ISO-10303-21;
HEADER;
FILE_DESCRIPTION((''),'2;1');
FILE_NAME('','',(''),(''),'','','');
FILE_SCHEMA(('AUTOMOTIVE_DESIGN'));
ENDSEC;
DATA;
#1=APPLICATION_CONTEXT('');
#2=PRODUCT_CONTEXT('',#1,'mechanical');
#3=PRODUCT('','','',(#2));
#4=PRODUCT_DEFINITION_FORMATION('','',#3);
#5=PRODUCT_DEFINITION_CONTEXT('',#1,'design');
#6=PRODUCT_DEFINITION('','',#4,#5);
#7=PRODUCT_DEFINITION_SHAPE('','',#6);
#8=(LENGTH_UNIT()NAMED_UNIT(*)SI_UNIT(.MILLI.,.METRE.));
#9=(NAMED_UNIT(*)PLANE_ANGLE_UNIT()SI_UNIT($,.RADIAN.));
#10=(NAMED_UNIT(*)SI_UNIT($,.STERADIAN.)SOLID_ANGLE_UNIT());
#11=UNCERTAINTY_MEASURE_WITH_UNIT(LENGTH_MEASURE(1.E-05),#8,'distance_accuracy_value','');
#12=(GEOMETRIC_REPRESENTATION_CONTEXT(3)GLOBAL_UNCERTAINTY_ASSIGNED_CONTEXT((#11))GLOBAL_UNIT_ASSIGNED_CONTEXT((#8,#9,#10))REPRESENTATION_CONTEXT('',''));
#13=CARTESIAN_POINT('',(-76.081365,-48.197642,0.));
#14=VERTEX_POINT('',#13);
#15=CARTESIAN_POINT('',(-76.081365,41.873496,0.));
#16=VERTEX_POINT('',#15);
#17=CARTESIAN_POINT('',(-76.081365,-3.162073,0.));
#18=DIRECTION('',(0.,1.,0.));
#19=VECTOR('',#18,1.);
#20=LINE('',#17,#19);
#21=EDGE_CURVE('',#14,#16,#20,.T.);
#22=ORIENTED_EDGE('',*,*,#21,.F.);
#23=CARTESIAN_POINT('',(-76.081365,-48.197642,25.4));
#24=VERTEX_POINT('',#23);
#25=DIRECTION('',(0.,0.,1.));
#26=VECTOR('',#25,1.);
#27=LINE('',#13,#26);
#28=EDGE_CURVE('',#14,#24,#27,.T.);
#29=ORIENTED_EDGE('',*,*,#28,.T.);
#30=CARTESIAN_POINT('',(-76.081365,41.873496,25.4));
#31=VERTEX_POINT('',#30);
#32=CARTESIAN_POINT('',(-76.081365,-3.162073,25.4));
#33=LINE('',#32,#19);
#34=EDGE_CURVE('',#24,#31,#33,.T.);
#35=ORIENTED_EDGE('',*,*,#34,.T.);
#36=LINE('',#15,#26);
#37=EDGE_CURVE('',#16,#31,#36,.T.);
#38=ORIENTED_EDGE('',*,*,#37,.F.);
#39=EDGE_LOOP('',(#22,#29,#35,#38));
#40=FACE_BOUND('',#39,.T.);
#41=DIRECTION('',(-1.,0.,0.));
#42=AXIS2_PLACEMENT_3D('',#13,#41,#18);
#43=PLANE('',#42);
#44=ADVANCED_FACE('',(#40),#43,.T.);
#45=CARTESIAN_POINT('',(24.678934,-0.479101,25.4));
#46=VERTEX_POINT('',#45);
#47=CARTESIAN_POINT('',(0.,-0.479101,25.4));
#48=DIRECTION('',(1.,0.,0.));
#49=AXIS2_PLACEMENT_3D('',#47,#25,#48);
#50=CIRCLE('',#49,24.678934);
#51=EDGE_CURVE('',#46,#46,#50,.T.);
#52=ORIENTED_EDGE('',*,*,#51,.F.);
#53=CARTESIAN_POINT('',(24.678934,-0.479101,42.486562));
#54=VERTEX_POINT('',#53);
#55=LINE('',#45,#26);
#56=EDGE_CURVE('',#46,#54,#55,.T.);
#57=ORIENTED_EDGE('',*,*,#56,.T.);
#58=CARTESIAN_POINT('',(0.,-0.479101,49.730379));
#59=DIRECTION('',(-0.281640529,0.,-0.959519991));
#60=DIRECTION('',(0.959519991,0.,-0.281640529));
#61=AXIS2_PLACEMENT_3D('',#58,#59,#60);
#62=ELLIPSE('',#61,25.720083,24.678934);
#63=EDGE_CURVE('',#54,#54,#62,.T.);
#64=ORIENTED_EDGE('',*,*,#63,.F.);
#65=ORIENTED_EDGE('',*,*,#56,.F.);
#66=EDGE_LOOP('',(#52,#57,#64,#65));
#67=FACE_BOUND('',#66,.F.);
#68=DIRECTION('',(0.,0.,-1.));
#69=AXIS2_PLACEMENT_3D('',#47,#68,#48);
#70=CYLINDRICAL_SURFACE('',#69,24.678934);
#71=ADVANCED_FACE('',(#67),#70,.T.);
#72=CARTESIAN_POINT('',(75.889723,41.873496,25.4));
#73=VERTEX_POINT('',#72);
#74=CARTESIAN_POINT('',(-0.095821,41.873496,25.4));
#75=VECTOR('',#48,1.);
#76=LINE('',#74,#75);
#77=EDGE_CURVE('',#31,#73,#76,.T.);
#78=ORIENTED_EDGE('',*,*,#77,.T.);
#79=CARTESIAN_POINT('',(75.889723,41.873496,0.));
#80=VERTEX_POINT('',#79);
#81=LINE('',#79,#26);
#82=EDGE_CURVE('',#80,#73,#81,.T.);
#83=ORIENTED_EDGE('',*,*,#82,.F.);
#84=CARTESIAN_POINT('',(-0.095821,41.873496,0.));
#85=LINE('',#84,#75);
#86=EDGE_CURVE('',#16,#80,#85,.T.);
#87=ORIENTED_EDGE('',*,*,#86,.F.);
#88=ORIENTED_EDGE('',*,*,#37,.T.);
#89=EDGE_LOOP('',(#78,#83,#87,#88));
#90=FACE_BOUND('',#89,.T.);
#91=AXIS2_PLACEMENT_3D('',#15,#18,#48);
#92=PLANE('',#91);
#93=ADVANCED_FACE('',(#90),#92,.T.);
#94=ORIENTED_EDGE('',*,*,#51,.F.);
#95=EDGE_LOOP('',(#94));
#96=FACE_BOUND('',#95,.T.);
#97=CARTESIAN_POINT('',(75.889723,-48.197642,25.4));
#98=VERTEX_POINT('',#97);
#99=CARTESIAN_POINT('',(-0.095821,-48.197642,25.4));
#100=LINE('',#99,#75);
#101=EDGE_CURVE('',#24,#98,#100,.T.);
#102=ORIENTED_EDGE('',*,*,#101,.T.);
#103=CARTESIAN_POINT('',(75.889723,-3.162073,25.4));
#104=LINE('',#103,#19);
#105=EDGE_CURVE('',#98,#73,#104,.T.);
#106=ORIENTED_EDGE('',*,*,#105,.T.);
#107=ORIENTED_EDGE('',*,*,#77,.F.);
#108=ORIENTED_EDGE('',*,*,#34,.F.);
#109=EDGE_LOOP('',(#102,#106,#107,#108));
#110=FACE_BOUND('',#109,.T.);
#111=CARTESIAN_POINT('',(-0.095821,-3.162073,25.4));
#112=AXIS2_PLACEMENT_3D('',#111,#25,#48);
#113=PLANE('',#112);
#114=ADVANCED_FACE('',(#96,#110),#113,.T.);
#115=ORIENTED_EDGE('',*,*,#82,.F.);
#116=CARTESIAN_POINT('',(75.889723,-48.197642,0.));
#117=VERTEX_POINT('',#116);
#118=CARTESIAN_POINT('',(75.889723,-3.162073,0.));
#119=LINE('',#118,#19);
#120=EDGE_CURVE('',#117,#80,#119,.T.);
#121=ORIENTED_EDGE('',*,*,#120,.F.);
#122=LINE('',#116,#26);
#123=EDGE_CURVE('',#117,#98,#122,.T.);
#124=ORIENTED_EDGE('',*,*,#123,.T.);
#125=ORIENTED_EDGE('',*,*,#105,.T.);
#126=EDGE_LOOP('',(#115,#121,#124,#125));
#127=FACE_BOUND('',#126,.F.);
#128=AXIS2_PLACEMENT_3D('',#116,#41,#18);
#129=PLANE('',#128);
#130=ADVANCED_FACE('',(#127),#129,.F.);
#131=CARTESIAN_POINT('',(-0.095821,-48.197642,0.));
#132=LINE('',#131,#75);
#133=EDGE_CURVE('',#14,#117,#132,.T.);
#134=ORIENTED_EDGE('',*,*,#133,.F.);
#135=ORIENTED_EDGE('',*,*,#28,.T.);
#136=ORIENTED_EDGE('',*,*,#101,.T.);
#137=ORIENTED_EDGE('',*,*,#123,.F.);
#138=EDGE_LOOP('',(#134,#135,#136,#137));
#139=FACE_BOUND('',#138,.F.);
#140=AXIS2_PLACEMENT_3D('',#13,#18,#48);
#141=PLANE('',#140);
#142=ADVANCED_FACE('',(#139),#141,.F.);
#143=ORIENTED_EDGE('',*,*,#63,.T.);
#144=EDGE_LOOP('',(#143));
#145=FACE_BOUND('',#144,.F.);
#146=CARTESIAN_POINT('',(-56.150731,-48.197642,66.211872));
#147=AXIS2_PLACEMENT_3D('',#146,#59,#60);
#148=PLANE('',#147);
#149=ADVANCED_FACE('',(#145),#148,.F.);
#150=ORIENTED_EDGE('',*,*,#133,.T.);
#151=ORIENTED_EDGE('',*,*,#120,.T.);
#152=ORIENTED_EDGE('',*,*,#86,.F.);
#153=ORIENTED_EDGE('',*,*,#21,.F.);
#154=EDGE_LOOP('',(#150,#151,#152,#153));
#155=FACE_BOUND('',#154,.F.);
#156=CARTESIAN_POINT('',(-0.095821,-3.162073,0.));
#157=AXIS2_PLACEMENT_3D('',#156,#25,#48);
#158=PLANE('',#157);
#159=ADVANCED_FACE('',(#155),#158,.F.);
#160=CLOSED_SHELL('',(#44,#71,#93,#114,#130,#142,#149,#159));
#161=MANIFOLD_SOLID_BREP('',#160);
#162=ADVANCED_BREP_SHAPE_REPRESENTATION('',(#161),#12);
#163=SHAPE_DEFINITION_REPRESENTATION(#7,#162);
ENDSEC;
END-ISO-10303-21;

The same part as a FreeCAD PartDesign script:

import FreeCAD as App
import Part
import Sketcher

V = App.Vector
Q = App.Units.Quantity

doc = App.newDocument("Part")
params = doc.addObject("Spreadsheet::Sheet", "Params")
for row, (alias, value) in enumerate([
    ("pad1_length", "1 in"),
    ("pad2_length", "1.5 in"),
], start=1):
    params.set(f"A{row}", alias)
    params.set(f"B{row}", "=" + value)
    params.setAlias(f"B{row}", alias)

body = doc.addObject("PartDesign::Body", "Body")

# Sketch on XY plane
sketch1 = body.newObject("Sketcher::SketchObject", "Sketch")
sketch1.AttachmentSupport = (doc.getObject("XY_Plane"), [""])
sketch1.MapMode = "FlatFace"
sketch1.addGeometry([
    Part.LineSegment(V(-76.081365, 41.873496, 0), V(-76.081365, -48.197642, 0)),
    Part.LineSegment(V(-76.081365, -48.197642, 0), V(75.889723, -48.197642, 0)),
    Part.LineSegment(V(75.889723, -48.197642, 0), V(75.889723, 41.873496, 0)),
    Part.LineSegment(V(75.889723, 41.873496, 0), V(-76.081365, 41.873496, 0)),
], False)
sketch1.addConstraint([
    Sketcher.Constraint("Coincident", 0, 2, 1, 1),
    Sketcher.Constraint("Coincident", 1, 2, 2, 1),
    Sketcher.Constraint("Coincident", 2, 2, 3, 1),
    Sketcher.Constraint("Coincident", 3, 2, 0, 1),
    Sketcher.Constraint("Vertical", 0),
    Sketcher.Constraint("Horizontal", 1),
    Sketcher.Constraint("Vertical", 2),
    Sketcher.Constraint("Horizontal", 3),
    Sketcher.Constraint("DistanceY", 0, 2, 0, 1, Q("90.071138 mm")),
    Sketcher.Constraint("DistanceX", 1, 1, 1, 2, Q("151.971087 mm")),
    Sketcher.Constraint("DistanceX", 0, 2, -1, 1, Q("76.081365 mm")),
    Sketcher.Constraint("DistanceY", 0, 2, -1, 1, Q("48.197642 mm")),
])
pad1 = body.newObject("PartDesign::Pad", "Pad")
pad1.Profile = sketch1
pad1.setExpression("Length", "Params.pad1_length")

# Sketch on XY plane
sketch2 = body.newObject("Sketcher::SketchObject", "Sketch001")
sketch2.AttachmentSupport = (doc.getObject("XY_Plane"), [""])
sketch2.MapMode = "FlatFace"
sketch2.AttachmentOffset = App.Placement(V(0, 0, 1 * 25.4), App.Rotation())
sketch2.addGeometry(Part.Circle(V(0, -0.479101, 0), V(0, 0, 1), 24.678934), False)
sketch2.addConstraint([
    Sketcher.Constraint("PointOnObject", 0, 3, -2),
    Sketcher.Constraint("Diameter", 0, Q("49.357868 mm")),
    Sketcher.Constraint("DistanceY", 0, 3, -1, 1, Q("0.479101 mm")),
])
pad2 = body.newObject("PartDesign::Pad", "Pad001")
pad2.Profile = sketch2
pad2.setExpression("Length", "Params.pad2_length")

# Sketch on XZ plane
sketch3 = body.newObject("Sketcher::SketchObject", "Sketch002")
sketch3.AttachmentSupport = (doc.getObject("XZ_Plane"), [""])
sketch3.MapMode = "FlatFace"
sketch3.AttachmentOffset = App.Placement(V(0, 0, 48.197642), App.Rotation())
sketch3.addGeometry([
    Part.LineSegment(V(29.129392, 74.644059, 0), V(-56.150731, 66.211872, 0)),
    Part.LineSegment(V(-56.150731, 66.211872, 0), V(38.519785, 38.423963, 0)),
    Part.LineSegment(V(38.519785, 38.423963, 0), V(29.129392, 74.644059, 0)),
], False)
sketch3.addConstraint([
    Sketcher.Constraint("Coincident", 0, 2, 1, 1),
    Sketcher.Constraint("Coincident", 1, 2, 2, 1),
    Sketcher.Constraint("Coincident", 2, 2, 0, 1),
    Sketcher.Constraint("Distance", 0, Q("85.695981 mm")),
    Sketcher.Constraint("DistanceX", 0, 2, -1, 1, Q("56.150731 mm")),
    Sketcher.Constraint("DistanceY", -1, 1, 0, 2, Q("66.211872 mm")),
    Sketcher.Constraint("DistanceX", -1, 1, 2, 2, Q("29.129392 mm")),
    Sketcher.Constraint("DistanceY", 1, 2, 0, 2, Q("27.787909 mm")),
    Sketcher.Constraint("Distance", 1, Q("98.664454 mm")),
])
pocket1 = body.newObject("PartDesign::Pocket", "Pocket")
pocket1.Profile = sketch3
pocket1.Type = "ThroughAll"

doc.recompute()
